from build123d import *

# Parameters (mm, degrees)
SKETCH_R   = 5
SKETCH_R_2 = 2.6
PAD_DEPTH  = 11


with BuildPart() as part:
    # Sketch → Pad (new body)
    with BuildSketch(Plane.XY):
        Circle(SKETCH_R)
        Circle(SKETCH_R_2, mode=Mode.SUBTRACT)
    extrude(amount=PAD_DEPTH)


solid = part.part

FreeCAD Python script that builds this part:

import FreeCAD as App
import Part
import Sketcher
from FreeCAD import Vector
Q = App.Units.Quantity

doc = App.newDocument("Part")
body = doc.addObject("PartDesign::Body", "Body")

sketch1 = body.newObject("Sketcher::SketchObject", "Sketch")
sketch1.AttachmentSupport = (doc.getObject("XY_Plane"), [""])
sketch1.MapMode = "FlatFace"
sketch1.addGeometry([
    Part.Circle(Vector(0, 0, 0), Vector(0, 0, 1), 5),
    Part.Circle(Vector(0, 0, 0), Vector(0, 0, 1), 2.6),
], False)
sketch1.addConstraint([
    Sketcher.Constraint("Coincident", 0, 3, -1, 1),
    Sketcher.Constraint("Coincident", 1, 3, -1, 1),
    Sketcher.Constraint("Diameter", 0, Q("10 mm")),
    Sketcher.Constraint("Diameter", 1, Q("5.2 mm")),
])
pad1 = body.newObject("PartDesign::Pad", "Pad")
pad1.Profile = sketch1
pad1.Length = 11

doc.recompute()
